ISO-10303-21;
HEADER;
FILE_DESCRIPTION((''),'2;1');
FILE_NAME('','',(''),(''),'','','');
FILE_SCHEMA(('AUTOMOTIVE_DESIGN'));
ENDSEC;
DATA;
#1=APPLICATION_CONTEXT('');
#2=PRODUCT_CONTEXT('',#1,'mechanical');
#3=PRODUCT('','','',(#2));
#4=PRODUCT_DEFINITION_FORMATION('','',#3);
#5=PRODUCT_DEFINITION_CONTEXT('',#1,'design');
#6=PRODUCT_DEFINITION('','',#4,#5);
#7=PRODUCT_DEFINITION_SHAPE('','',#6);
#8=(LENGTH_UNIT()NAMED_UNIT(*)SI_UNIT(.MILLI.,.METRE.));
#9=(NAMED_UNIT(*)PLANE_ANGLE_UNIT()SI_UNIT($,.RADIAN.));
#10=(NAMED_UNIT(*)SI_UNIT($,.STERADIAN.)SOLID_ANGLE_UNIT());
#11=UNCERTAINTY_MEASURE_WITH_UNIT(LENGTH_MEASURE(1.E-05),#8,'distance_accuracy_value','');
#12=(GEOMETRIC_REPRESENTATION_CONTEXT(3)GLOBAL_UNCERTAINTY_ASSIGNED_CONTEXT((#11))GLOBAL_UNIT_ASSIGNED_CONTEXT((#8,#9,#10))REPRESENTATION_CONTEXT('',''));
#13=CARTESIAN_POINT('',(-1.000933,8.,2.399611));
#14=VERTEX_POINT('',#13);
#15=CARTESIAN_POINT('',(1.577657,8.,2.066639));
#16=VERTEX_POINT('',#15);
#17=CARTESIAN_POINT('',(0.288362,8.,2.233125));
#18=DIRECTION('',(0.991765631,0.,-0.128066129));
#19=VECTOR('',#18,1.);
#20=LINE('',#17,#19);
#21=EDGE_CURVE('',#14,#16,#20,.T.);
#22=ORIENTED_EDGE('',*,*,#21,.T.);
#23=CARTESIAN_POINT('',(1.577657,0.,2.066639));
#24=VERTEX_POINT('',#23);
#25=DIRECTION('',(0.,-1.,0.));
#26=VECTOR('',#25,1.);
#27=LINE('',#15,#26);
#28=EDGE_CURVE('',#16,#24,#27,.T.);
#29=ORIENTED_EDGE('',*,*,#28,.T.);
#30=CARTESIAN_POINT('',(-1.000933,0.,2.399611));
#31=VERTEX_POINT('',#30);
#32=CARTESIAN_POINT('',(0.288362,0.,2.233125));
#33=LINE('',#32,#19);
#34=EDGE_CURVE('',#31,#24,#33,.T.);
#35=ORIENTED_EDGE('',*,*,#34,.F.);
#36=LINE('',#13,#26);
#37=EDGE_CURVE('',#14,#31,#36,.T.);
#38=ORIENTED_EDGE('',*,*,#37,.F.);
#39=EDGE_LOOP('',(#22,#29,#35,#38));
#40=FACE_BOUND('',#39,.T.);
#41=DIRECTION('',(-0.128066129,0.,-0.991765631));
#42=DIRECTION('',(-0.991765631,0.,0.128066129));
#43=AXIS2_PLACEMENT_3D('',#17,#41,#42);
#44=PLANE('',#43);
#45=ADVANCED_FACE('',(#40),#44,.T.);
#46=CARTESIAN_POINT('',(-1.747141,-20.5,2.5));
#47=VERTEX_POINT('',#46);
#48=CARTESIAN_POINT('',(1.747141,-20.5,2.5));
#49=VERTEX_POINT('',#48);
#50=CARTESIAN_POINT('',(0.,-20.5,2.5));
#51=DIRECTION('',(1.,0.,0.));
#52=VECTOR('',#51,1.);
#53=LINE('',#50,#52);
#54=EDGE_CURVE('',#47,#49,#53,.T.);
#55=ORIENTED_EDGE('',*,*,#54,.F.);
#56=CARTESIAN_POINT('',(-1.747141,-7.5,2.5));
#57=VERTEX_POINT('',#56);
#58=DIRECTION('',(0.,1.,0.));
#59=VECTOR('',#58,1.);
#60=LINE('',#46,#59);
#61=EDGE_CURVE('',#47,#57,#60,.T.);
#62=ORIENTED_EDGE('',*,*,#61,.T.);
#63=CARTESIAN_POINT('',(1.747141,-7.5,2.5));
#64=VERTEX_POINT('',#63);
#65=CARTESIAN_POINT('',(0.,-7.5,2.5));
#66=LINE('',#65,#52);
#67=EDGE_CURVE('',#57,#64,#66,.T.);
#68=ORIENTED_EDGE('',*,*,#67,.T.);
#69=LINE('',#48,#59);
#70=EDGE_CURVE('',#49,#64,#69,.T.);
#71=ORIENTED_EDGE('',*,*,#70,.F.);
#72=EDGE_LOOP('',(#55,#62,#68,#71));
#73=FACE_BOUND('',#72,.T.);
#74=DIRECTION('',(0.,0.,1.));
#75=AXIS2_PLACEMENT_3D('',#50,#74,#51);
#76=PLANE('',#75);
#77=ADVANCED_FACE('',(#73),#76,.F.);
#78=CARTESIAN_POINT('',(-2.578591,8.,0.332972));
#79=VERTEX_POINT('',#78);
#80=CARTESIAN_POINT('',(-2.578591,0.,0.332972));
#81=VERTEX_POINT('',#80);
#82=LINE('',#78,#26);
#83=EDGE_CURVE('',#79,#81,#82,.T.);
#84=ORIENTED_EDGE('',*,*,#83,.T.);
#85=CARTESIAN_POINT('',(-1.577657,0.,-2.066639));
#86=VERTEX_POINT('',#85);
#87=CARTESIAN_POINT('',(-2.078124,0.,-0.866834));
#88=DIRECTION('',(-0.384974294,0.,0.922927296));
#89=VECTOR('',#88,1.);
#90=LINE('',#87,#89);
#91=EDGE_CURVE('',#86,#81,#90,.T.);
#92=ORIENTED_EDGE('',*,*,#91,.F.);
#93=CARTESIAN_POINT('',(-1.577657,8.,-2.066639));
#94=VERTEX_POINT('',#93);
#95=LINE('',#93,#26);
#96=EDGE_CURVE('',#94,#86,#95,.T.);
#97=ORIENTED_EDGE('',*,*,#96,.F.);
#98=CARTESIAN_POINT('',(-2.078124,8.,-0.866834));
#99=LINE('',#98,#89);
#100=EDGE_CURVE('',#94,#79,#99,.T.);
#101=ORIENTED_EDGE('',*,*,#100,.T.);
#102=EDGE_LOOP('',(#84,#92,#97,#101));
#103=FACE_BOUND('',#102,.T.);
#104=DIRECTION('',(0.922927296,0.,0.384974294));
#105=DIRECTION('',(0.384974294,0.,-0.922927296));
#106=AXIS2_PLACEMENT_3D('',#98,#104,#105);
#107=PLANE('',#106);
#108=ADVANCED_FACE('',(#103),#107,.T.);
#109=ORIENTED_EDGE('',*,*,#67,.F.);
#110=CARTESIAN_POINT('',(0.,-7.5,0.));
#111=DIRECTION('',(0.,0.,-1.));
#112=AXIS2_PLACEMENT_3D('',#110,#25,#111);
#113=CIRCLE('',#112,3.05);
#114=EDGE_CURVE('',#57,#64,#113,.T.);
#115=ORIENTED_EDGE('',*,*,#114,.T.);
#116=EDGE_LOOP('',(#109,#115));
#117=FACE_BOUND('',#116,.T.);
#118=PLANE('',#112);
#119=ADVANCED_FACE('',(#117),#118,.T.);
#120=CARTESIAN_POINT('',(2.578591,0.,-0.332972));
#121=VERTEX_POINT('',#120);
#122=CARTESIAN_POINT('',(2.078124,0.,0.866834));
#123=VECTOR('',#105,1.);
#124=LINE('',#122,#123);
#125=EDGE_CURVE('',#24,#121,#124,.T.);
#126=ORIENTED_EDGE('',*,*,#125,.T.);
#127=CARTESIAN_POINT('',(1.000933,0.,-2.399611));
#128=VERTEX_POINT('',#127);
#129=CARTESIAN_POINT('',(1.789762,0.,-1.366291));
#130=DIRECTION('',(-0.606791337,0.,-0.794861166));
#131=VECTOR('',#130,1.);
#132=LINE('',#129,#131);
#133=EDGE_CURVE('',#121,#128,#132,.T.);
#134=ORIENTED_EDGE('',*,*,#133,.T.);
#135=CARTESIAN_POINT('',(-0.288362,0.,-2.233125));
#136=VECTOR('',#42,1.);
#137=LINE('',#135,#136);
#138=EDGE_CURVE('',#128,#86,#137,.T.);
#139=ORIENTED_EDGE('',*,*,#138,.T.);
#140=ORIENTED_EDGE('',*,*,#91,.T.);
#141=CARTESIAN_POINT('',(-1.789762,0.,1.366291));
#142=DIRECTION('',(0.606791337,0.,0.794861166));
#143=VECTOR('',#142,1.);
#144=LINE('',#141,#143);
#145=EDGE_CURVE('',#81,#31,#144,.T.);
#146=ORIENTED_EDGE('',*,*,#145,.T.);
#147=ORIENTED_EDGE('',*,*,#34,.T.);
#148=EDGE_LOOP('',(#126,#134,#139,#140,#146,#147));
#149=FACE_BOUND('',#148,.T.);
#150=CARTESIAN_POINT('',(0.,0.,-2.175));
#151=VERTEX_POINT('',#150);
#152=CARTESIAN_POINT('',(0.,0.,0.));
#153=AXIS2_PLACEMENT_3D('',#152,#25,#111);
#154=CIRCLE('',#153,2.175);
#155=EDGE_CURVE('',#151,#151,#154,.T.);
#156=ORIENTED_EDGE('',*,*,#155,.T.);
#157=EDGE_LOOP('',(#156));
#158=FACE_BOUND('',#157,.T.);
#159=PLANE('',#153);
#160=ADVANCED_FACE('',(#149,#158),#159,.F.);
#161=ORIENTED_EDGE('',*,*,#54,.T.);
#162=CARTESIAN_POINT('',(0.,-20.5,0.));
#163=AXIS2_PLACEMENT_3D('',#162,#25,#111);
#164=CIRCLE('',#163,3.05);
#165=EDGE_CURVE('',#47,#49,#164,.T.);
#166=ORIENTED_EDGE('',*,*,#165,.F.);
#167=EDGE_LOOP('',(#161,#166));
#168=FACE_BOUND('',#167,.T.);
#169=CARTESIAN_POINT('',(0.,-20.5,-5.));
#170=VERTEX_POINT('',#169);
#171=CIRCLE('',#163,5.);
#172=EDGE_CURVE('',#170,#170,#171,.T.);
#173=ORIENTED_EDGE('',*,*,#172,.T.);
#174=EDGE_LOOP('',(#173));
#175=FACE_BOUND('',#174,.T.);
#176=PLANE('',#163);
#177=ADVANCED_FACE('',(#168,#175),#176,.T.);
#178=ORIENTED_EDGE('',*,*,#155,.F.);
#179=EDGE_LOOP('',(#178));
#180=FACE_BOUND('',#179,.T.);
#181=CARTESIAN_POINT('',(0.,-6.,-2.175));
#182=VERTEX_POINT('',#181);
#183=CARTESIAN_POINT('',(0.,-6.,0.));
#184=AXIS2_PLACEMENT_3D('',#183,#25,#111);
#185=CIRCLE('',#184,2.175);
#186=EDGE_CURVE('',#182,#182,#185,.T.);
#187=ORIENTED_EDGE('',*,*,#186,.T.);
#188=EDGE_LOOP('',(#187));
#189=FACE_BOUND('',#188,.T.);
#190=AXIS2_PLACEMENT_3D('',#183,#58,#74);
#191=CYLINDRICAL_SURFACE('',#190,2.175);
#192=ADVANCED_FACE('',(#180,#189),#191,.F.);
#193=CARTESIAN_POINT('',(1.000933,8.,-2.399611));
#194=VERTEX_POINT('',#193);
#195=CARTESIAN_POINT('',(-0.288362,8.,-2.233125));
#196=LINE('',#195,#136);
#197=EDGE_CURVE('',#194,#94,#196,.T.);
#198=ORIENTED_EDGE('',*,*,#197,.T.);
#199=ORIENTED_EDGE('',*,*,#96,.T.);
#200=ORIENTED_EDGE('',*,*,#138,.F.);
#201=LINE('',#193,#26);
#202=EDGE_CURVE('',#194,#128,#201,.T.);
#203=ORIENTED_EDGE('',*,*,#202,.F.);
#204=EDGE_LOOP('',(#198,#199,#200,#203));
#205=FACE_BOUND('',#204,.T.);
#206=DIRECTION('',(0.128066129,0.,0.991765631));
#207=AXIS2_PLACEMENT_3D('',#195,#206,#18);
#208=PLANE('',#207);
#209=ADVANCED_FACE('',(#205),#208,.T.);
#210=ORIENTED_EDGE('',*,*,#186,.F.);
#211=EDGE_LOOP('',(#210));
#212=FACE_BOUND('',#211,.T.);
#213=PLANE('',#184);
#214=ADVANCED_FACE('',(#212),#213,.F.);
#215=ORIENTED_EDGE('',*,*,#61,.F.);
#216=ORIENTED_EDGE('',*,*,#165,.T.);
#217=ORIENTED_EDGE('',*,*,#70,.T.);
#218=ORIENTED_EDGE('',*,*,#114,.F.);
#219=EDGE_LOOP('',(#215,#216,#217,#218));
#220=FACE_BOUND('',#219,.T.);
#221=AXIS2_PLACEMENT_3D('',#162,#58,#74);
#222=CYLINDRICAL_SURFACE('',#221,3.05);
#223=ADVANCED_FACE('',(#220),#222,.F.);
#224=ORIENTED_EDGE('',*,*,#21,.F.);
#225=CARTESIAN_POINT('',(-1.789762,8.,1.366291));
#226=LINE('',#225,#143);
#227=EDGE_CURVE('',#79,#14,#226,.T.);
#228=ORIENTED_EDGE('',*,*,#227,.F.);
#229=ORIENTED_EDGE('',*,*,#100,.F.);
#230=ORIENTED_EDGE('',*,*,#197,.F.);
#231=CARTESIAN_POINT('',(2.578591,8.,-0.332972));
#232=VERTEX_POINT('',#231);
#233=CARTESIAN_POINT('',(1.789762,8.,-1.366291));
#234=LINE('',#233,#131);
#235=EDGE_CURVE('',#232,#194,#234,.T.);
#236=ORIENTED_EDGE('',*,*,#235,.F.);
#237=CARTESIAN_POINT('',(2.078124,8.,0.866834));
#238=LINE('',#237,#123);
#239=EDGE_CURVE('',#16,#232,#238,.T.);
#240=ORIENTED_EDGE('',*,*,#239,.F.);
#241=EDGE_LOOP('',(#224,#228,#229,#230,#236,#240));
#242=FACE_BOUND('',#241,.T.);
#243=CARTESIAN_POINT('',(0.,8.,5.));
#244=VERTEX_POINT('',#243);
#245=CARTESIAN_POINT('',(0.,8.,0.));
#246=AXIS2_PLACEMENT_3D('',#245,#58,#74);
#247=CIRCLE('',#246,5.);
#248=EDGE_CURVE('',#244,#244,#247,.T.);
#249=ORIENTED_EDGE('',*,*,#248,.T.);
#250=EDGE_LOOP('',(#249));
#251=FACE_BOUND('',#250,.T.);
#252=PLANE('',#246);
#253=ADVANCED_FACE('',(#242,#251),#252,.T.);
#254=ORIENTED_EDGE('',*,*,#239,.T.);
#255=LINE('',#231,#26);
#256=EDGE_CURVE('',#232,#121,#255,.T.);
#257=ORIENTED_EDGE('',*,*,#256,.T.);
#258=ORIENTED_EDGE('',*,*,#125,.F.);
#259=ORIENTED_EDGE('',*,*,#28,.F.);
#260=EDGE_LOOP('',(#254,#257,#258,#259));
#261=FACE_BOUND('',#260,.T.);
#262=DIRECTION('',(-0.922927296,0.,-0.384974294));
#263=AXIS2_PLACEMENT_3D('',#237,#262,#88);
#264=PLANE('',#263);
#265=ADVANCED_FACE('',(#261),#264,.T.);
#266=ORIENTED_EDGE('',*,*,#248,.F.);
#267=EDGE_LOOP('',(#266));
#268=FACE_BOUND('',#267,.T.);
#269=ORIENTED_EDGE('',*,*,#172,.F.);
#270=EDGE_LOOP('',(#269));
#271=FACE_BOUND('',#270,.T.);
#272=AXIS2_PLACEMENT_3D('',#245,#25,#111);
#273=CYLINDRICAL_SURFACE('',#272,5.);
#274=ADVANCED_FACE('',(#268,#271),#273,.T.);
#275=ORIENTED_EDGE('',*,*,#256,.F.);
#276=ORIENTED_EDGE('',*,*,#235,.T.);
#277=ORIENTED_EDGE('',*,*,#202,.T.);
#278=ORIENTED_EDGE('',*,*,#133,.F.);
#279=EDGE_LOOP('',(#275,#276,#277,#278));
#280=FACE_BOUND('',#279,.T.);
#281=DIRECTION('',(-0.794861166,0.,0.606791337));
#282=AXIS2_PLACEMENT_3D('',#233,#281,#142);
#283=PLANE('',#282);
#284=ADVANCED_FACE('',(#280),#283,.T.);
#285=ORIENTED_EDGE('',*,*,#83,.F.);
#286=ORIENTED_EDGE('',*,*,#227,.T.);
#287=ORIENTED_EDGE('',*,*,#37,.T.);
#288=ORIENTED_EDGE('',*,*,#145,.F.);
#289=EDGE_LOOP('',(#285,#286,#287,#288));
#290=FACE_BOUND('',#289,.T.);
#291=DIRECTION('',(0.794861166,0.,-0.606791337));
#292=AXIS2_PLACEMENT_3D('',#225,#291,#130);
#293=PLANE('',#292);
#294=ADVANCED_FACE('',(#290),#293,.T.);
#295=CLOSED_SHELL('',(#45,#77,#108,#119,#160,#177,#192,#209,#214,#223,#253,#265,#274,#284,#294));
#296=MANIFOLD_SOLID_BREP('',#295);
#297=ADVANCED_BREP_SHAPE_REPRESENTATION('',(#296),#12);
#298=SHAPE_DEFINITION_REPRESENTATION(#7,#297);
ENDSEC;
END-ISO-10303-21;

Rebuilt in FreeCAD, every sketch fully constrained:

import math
import FreeCAD as App
import Part
import Sketcher

V = App.Vector


def add_polygon(sketch, points):
    """Adds a closed chain of lines whose ends are joined by coincident constraints."""
    first, n = sketch.GeometryCount, len(points)
    for a, b in zip(points, points[1:] + points[:1]):
        sketch.addGeometry(Part.LineSegment(App.Vector(*a, 0), App.Vector(*b, 0)), False)
    for i in range(n):
        sketch.addConstraint(Sketcher.Constraint("Coincident", first + i, 2, first + (i + 1) % n, 1))

doc = App.newDocument("Part")
body = doc.addObject("PartDesign::Body", "Body")

# Sketch on XZ plane
sketch1 = doc.addObject("Sketcher::SketchObject", "Sketch")
body.addObject(sketch1)
sketch1.AttachmentSupport = (doc.XZ_Plane, [""])
sketch1.MapMode = "FlatFace"
sketch1.addGeometry(Part.Circle(V(0, 0, 0), V(0, 0, 1), 5), False)  # 0
add_polygon(sketch1, [(2.578591, -0.332972), (1.577657, 2.066639), (-1.000933, 2.399611), (-2.578591, 0.332972), (-1.577657, -2.066639), (1.000933, -2.399611)])  # lines 1-6
sketch1.addConstraint([
    Sketcher.Constraint("Coincident", 0, 3, -1, 1),
    Sketcher.Constraint("Symmetric", 1, 2, 4, 2, -1, 1),
    Sketcher.Constraint("Symmetric", 2, 2, 5, 2, -1, 1),
    Sketcher.Constraint("Symmetric", 3, 2, 6, 2, -1, 1),
    Sketcher.Constraint("Equal", 1, 2),
    Sketcher.Constraint("Equal", 2, 3),
    Sketcher.Constraint("Diameter", 0, 10.0),
    Sketcher.Constraint("Distance", 1, 2.6),
    Sketcher.Constraint("DistanceY", -1, 1, 1, 2, 2.066639),
    Sketcher.Constraint("DistanceY", -1, 1, 2, 2, 2.399611),
    Sketcher.Constraint("DistanceX", 3, 2, -1, 1, 2.578591),
])
pad1 = doc.addObject("PartDesign::Pad", "Pad")
body.addObject(pad1)
pad1.Profile = sketch1
pad1.Length = 8
pad1.Reversed = True

# Sketch on XZ plane
sketch2 = doc.addObject("Sketcher::SketchObject", "Sketch001")
body.addObject(sketch2)
sketch2.AttachmentSupport = (doc.XZ_Plane, [""])
sketch2.MapMode = "FlatFace"
sketch2.AttachmentOffset = App.Placement(V(0, 0, 6), App.Rotation())
sketch2.addGeometry([
    Part.Circle(V(0, 0, 0), V(0, 0, 1), 5),
    Part.Circle(V(0, 0, 0), V(0, 0, 1), 2.175),
], False)
sketch2.addConstraint([
    Sketcher.Constraint("Coincident", 0, 3, -1, 1),
    Sketcher.Constraint("Coincident", 1, 3, -1, 1),
    Sketcher.Constraint("Diameter", 0, 10.0),
    Sketcher.Constraint("Diameter", 1, 4.35),
])
pad2 = doc.addObject("PartDesign::Pad", "Pad001")
body.addObject(pad2)
pad2.Profile = sketch2
pad2.Length = 6
pad2.Reversed = True

# Sketch on XZ plane
sketch3 = doc.addObject("Sketcher::SketchObject", "Sketch002")
body.addObject(sketch3)
sketch3.AttachmentSupport = (doc.XZ_Plane, [""])
sketch3.MapMode = "FlatFace"
sketch3.AttachmentOffset = App.Placement(V(0, 0, 7.5), App.Rotation())
sketch3.addGeometry(Part.Circle(V(0, 0, 0), V(0, 0, 1), 5), False)
sketch3.addConstraint([
    Sketcher.Constraint("Coincident", 0, 3, -1, 1),
    Sketcher.Constraint("Diameter", 0, 10.0),
])
pad3 = doc.addObject("PartDesign::Pad", "Pad002")
body.addObject(pad3)
pad3.Profile = sketch3
pad3.Length = 1.5
pad3.Reversed = True

# Sketch on XZ plane
sketch4 = doc.addObject("Sketcher::SketchObject", "Sketch003")
body.addObject(sketch4)
sketch4.AttachmentSupport = (doc.XZ_Plane, [""])
sketch4.MapMode = "FlatFace"
sketch4.AttachmentOffset = App.Placement(V(0, 0, 20.5), App.Rotation())
sketch4.addGeometry([
    Part.Circle(V(0, 0, 0), V(0, 0, 1), 5),
    Part.ArcOfCircle(Part.Circle(V(0, 0, 0), V(0, 0, 1), 3.05), math.radians(124.948014), math.radians(415.051986)),
    Part.LineSegment(V(-1.747141, 2.5, 0), V(1.747141, 2.5, 0)),
], False)
sketch4.addConstraint([
    Sketcher.Constraint("Coincident", 1, 1, 2, 1),
    Sketcher.Constraint("Coincident", 2, 2, 1, 2),
    Sketcher.Constraint("Horizontal", 2),
    Sketcher.Constraint("Coincident", 0, 3, -1, 1),
    Sketcher.Constraint("Coincident", 1, 3, -1, 1),
    Sketcher.Constraint("Diameter", 0, 10.0),
    Sketcher.Constraint("Radius", 1, 3.05),
    Sketcher.Constraint("DistanceY", -1, 1, 1, 1, 2.5),
])
pad4 = doc.addObject("PartDesign::Pad", "Pad003")
body.addObject(pad4)
pad4.Profile = sketch4
pad4.Length = 13
pad4.Reversed = True

doc.recompute()
